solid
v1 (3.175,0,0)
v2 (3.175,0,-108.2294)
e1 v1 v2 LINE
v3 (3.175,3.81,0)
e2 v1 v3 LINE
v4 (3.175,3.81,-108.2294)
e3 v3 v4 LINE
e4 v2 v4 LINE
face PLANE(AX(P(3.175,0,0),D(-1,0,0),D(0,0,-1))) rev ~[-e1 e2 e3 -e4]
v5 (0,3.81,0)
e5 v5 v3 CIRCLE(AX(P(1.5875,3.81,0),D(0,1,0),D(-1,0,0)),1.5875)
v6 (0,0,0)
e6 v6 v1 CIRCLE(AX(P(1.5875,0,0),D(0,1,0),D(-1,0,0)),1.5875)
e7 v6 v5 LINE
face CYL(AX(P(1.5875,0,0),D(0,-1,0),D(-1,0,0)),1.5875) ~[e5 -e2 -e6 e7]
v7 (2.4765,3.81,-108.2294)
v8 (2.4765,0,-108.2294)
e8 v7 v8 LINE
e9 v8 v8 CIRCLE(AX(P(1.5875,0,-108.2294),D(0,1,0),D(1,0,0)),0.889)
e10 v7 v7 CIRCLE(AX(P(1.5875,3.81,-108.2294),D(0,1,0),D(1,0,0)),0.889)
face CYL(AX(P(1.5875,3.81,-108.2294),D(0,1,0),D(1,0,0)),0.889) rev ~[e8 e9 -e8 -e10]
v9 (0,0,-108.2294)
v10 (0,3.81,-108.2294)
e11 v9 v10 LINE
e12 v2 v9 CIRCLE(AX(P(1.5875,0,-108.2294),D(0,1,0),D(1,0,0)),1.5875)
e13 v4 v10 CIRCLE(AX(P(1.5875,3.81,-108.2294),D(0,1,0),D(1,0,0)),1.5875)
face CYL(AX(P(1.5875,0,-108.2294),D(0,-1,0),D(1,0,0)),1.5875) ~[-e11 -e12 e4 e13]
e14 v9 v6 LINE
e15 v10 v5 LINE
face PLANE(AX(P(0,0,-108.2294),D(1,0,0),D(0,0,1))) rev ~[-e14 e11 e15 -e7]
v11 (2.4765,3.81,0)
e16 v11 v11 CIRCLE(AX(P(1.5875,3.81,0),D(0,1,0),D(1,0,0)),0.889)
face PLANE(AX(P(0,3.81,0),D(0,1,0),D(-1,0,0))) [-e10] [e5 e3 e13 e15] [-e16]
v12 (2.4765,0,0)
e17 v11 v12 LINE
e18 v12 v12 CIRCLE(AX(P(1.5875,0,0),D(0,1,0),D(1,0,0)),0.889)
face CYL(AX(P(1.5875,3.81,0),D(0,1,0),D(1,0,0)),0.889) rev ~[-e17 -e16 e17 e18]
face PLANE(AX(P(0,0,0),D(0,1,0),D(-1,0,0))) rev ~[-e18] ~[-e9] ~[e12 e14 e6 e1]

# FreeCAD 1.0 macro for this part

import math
import FreeCAD as App
import Part
import Sketcher

V = App.Vector
Q = App.Units.Quantity

doc = App.newDocument("Part")
params = doc.addObject("Spreadsheet::Sheet", "Params")
for row, (alias, value) in enumerate([
    ("sketch1_radius", "0.0625 in"),
    ("sketch1_height", "4.261 in"),
    ("pad1_length", "0.15 in"),
    ("sketch2_diameter", "0.07 in"),
    ("pocket1_length", "0.15 in"),
], start=1):
    params.set(f"A{row}", alias)
    params.set(f"B{row}", "=" + value)
    params.setAlias(f"B{row}", alias)

body = doc.addObject("PartDesign::Body", "Body")

sketch1 = body.newObject("Sketcher::SketchObject", "Sketch")
sketch1.AttachmentSupport = (doc.getObject("XZ_Plane"), [""])
sketch1.MapMode = "FlatFace"
sketch1.addGeometry([
    Part.ArcOfCircle(Part.Circle(V(1.5875, 0, 0), V(0, 0, 1), 1.5875), math.radians(0), math.radians(180)),
    Part.LineSegment(V(3.175, 0, 0), V(3.175, -108.2294, 0)),
    Part.ArcOfCircle(Part.Circle(V(1.5875, -108.2294, 0), V(0, 0, 1), 1.5875), math.radians(180), math.radians(360)),
    Part.LineSegment(V(0, -108.2294, 0), V(0, 0, 0)),
], False)
sketch1.addConstraint([
    Sketcher.Constraint("Tangent", 0, 1, 1, 1),
    Sketcher.Constraint("Tangent", 1, 2, 2, 2),
    Sketcher.Constraint("Tangent", 2, 1, 3, 1),
    Sketcher.Constraint("Tangent", 3, 2, 0, 2),
    Sketcher.Constraint("Vertical", 1),
    Sketcher.Constraint("Vertical", 3),
    Sketcher.Constraint("Coincident", 3, 2, -1, 1),
    Sketcher.Constraint("Radius", 0, Q("0.0625 in")),
    Sketcher.Constraint("DistanceY", 1, 2, 1, 1, Q("4.261 in")),
])
sketch1.setExpression("Constraints[7]", "Params.sketch1_radius")
sketch1.setExpression("Constraints[8]", "Params.sketch1_height")
pad1 = body.newObject("PartDesign::Pad", "Pad")
pad1.Profile = sketch1
pad1.setExpression("Length", "Params.pad1_length")
pad1.Reversed = True

sketch2 = body.newObject("Sketcher::SketchObject", "Sketch001")
sketch2.AttachmentSupport = (doc.getObject("XZ_Plane"), [""])
sketch2.MapMode = "FlatFace"
sketch2.AttachmentOffset = App.Placement(V(0, 0, -0.15 * 25.4), App.Rotation())
sketch2.addGeometry([
    Part.Circle(V(1.5875, 0, 0), V(0, 0, 1), 0.889),
    Part.Circle(V(1.5875, -108.2294, 0), V(0, 0, 1), 0.889),
], False)
sketch2.addConstraint([
    Sketcher.Constraint("Equal", 0, 1),
    Sketcher.Constraint("PointOnObject", 0, 3, -1),
    Sketcher.Constraint("Vertical", 0, 3, 1, 3),
    Sketcher.Constraint("Diameter", 0, Q("0.07 in")),
    Sketcher.Constraint("DistanceX", -1, 1, 0, 3, Q("0.0625 in")),
    Sketcher.Constraint("DistanceY", 1, 3, -1, 1, Q("4.261 in")),
])
sketch2.setExpression("Constraints[3]", "Params.sketch2_diameter")
pocket1 = body.newObject("PartDesign::Pocket", "Pocket")
pocket1.Profile = sketch2
pocket1.setExpression("Length", "Params.pocket1_length")
pocket1.Reversed = True

doc.recompute()
